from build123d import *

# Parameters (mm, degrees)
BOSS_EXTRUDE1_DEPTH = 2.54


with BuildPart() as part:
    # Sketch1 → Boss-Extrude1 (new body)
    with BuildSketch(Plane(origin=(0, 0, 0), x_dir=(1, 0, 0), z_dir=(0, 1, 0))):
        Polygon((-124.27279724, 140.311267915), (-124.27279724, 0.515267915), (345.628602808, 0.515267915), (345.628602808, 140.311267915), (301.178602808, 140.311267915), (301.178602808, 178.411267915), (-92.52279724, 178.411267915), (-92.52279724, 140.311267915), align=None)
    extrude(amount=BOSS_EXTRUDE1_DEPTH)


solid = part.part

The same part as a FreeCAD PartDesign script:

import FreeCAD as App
import Part
import Sketcher

V = App.Vector
Q = App.Units.Quantity


def add_polygon(sketch, points):
    """Adds a closed chain of lines whose ends are joined by coincident constraints."""
    first, n = sketch.GeometryCount, len(points)
    for a, b in zip(points, points[1:] + points[:1]):
        sketch.addGeometry(Part.LineSegment(App.Vector(*a, 0), App.Vector(*b, 0)), False)
    for i in range(n):
        sketch.addConstraint(Sketcher.Constraint("Coincident", first + i, 2, first + (i + 1) % n, 1))

doc = App.newDocument("Part")
body = doc.addObject("PartDesign::Body", "Body")

# Sketch on XZ plane
sketch1 = body.newObject("Sketcher::SketchObject", "Sketch")
sketch1.AttachmentSupport = (doc.getObject("XZ_Plane"), [""])
sketch1.MapMode = "FlatFace"
add_polygon(sketch1, [(-124, -140), (-124, -1), (346, -1), (346, -140), (301, -140), (301, -178), (-93, -178), (-93, -140)])  # lines 0-7
sketch1.addConstraint([
    Sketcher.Constraint("Vertical", 0),
    Sketcher.Constraint("Horizontal", 1),
    Sketcher.Constraint("Vertical", 2),
    Sketcher.Constraint("Horizontal", 3),
    Sketcher.Constraint("Vertical", 4),
    Sketcher.Constraint("Horizontal", 5),
    Sketcher.Constraint("Vertical", 6),
    Sketcher.Constraint("Horizontal", 7),
    Sketcher.Constraint("Horizontal", 3, 2, 6, 2),
    Sketcher.Constraint("DistanceY", 4, 2, 4, 1, Q("1.5 in")),
    Sketcher.Constraint("DistanceX", 3, 2, 3, 1, Q("1.75 in")),
    Sketcher.Constraint("DistanceX", 7, 2, 7, 1, Q("1.25 in")),
    Sketcher.Constraint("DistanceX", 1, 1, 1, 2, Q("469.9014 mm")),
    Sketcher.Constraint("DistanceY", 0, 1, 0, 2, Q("139.796 mm")),
    Sketcher.Constraint("DistanceX", 0, 2, -1, 1, Q("124.272797 mm")),
    Sketcher.Constraint("DistanceY", 0, 2, -1, 1, Q("0.515268 mm")),
])
pad1 = body.newObject("PartDesign::Pad", "Pad")
pad1.Profile = sketch1
pad1.Length = Q("0.1 in")
pad1.Reversed = True

doc.recompute()
